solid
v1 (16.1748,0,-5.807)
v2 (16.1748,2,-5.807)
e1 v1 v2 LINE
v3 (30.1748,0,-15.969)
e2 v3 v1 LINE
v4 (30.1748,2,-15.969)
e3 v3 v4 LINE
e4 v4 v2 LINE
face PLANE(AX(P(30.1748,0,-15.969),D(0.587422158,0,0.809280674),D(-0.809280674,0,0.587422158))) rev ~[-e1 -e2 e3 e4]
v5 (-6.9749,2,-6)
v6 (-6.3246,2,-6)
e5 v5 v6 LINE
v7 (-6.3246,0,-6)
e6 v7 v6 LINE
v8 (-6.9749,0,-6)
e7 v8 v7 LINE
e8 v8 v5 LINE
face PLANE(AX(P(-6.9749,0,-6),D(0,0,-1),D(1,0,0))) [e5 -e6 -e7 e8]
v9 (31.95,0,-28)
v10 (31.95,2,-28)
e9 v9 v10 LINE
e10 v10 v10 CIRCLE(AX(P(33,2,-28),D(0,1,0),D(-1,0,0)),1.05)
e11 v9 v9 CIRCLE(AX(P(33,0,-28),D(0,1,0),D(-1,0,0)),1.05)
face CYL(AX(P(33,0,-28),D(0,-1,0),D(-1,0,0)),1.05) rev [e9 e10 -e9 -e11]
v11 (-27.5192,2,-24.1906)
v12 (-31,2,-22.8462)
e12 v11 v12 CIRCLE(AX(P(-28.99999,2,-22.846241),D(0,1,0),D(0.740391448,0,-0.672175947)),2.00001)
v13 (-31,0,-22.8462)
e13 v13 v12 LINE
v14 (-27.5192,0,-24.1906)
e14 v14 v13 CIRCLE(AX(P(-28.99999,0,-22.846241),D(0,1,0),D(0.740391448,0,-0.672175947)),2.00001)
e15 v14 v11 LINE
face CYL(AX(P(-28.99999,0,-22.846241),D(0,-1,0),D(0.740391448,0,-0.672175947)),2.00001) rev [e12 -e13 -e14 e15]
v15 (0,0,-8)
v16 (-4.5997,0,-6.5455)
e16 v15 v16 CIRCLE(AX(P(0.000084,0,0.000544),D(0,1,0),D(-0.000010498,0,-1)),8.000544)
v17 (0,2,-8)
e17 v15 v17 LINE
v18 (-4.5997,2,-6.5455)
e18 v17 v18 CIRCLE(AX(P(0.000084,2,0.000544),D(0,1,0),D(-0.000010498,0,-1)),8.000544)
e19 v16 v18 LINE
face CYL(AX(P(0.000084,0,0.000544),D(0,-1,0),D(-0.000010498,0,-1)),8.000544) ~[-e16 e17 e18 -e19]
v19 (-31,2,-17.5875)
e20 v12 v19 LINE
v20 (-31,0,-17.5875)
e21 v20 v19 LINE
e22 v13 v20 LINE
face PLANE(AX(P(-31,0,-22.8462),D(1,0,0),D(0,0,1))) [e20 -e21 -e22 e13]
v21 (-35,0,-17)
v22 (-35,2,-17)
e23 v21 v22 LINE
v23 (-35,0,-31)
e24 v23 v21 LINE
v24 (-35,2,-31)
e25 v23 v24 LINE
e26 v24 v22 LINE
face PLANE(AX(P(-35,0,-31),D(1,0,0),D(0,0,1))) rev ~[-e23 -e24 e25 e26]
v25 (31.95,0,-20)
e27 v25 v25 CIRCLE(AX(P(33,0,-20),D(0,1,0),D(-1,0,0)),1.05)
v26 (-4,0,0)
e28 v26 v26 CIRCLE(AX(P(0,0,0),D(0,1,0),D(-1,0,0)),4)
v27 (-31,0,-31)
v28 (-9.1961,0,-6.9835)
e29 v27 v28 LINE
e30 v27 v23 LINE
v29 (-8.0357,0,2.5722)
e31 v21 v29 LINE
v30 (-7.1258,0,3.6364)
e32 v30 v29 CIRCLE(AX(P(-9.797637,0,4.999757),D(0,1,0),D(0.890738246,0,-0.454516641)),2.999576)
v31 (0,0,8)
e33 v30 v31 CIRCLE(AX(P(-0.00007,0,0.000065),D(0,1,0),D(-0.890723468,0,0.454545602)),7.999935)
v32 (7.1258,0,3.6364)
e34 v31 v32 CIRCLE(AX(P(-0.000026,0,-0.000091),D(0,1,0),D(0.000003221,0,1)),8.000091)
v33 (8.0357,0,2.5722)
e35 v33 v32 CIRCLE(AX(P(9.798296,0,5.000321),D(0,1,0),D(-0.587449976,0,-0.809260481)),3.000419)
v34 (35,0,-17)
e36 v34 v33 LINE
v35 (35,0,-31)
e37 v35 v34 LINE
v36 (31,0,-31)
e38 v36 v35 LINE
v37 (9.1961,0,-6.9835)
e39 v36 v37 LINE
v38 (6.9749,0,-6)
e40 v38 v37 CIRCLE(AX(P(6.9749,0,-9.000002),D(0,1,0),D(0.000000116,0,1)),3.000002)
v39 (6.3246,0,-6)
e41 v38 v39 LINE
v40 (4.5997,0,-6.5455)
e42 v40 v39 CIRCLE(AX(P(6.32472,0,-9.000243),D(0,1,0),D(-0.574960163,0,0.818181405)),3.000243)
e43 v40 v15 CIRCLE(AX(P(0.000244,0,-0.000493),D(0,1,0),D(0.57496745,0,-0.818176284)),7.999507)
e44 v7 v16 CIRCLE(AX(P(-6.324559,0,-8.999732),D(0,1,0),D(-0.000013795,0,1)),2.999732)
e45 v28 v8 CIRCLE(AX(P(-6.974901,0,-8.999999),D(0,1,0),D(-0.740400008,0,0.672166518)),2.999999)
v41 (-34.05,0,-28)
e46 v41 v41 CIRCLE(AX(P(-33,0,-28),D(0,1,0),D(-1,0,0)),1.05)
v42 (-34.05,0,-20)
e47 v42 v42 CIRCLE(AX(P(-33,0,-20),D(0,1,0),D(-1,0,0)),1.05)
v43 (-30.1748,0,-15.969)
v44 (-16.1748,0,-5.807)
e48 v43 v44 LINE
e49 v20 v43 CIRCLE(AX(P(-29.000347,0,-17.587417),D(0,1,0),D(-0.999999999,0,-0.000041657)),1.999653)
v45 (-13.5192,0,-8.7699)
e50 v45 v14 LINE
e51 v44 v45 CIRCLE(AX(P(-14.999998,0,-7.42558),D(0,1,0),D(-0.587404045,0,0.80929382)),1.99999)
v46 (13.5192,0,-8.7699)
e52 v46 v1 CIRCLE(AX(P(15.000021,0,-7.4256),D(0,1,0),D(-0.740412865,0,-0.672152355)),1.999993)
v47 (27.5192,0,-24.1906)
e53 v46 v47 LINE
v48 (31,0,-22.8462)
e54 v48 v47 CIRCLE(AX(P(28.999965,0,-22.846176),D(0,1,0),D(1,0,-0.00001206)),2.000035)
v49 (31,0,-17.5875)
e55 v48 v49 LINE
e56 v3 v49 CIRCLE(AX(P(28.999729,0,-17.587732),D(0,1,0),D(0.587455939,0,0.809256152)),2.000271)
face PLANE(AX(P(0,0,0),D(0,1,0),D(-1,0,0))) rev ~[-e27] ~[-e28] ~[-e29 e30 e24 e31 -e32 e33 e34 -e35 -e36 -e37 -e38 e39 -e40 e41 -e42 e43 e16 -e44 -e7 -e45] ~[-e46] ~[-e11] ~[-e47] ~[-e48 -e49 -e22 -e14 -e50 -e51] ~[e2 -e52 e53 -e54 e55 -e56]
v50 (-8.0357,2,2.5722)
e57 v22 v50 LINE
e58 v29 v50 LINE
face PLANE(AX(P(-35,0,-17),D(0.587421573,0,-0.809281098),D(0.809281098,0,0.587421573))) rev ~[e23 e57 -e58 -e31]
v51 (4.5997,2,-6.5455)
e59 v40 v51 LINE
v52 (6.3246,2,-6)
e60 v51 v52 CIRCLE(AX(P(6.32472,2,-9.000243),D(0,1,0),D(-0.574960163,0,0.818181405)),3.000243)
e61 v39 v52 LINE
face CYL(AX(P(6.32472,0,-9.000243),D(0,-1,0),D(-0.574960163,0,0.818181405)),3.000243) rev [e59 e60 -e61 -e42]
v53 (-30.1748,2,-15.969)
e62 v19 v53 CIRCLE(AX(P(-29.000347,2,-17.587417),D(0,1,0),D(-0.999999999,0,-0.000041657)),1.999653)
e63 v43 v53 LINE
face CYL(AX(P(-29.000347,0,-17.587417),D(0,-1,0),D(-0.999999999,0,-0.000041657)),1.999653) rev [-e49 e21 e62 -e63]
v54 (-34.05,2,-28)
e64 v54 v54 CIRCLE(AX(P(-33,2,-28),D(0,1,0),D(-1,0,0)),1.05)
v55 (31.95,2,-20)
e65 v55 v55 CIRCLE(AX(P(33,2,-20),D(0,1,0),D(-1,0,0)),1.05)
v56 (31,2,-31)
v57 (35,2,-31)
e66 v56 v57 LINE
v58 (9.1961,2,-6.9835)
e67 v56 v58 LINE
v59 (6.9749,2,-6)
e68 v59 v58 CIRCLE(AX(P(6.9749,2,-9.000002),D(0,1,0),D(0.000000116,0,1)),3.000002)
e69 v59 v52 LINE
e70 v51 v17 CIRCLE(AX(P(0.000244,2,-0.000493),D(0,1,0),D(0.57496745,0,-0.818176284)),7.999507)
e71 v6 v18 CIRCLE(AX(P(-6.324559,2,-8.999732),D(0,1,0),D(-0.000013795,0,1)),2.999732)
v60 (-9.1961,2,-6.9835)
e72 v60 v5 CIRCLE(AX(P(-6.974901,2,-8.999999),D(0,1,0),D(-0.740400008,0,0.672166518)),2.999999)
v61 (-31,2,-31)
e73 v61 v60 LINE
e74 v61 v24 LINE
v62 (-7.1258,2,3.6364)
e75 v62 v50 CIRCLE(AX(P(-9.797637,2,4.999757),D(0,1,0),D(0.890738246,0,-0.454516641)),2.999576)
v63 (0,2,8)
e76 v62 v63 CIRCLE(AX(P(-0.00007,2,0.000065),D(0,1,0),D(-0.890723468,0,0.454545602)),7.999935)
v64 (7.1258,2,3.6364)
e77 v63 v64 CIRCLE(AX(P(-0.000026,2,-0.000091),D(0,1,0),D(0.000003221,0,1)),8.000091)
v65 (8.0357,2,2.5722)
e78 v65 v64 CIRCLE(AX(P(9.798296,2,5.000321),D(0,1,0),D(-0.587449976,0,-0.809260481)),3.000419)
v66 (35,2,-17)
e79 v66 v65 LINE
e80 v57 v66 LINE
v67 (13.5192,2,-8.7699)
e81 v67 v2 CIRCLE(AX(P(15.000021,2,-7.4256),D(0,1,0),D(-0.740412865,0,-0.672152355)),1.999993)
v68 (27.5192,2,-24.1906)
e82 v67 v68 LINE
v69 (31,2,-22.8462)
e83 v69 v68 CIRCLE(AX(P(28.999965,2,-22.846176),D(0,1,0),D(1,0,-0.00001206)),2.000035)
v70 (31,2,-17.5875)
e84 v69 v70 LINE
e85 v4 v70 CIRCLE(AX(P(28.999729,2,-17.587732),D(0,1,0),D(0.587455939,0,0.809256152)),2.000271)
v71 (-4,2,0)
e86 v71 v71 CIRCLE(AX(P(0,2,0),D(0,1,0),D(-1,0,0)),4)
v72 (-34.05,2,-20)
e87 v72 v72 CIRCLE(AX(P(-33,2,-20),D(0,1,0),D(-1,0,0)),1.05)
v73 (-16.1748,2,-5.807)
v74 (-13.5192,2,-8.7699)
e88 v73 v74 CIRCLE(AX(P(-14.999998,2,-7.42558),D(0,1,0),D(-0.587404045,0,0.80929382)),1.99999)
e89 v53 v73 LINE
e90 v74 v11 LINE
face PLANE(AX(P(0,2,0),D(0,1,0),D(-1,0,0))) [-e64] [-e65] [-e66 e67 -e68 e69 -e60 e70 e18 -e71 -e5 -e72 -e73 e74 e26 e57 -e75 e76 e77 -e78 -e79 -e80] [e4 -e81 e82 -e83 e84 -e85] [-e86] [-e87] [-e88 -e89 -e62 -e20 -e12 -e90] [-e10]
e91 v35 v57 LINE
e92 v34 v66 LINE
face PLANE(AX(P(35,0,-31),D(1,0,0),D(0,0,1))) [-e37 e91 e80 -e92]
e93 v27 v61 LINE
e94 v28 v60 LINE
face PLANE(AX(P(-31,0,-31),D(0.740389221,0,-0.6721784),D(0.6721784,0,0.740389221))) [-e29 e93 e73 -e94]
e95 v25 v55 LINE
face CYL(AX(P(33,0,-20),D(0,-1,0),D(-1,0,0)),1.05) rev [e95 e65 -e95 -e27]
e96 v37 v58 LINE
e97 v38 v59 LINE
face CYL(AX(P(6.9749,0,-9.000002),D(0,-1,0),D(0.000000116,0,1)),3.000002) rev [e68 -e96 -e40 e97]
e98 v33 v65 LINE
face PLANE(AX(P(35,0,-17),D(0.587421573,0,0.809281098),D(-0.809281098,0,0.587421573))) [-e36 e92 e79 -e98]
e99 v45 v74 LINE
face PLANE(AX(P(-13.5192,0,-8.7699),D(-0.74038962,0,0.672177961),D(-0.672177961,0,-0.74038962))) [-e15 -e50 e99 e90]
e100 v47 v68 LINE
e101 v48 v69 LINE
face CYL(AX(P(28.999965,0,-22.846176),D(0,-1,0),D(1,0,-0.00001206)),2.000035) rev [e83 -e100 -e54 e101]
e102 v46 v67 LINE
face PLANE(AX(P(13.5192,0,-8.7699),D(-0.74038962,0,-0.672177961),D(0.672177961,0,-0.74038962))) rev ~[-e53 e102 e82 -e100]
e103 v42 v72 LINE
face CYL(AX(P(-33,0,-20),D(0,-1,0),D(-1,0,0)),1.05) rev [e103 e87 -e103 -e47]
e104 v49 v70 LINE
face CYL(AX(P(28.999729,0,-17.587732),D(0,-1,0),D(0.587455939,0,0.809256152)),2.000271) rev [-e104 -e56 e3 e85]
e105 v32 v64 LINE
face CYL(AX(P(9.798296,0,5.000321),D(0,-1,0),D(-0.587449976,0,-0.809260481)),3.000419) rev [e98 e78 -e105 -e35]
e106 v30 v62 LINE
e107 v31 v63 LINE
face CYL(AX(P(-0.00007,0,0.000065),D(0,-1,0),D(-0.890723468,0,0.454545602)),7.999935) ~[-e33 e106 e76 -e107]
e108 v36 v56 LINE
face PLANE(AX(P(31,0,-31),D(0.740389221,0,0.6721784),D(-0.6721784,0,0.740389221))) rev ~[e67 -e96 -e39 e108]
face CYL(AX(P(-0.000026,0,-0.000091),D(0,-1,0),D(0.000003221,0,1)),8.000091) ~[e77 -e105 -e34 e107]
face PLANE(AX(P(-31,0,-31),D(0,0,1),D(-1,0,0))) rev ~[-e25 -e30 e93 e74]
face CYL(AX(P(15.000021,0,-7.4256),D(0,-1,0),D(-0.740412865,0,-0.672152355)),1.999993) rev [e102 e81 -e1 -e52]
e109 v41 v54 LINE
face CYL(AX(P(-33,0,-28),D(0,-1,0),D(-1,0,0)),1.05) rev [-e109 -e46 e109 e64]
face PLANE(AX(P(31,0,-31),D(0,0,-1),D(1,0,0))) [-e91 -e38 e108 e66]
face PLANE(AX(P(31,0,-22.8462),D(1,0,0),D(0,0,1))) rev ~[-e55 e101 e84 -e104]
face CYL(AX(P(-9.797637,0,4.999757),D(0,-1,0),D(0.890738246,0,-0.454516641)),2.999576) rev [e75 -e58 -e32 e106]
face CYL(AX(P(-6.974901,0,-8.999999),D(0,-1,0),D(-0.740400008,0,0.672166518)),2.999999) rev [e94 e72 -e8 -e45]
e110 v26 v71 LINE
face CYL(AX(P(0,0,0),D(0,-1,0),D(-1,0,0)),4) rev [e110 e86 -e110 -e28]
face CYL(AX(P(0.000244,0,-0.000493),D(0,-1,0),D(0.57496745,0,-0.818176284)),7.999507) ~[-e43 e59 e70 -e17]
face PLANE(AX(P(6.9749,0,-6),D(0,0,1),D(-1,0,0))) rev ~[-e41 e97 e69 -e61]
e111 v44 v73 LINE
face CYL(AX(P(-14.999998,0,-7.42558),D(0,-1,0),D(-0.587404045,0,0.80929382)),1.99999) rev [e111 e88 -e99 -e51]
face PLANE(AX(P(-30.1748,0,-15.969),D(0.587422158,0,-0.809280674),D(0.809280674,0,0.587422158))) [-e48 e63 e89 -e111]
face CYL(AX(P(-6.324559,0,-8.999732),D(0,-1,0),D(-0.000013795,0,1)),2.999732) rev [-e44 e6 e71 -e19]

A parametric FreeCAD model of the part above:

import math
import FreeCAD as App
import Part
import Sketcher

doc = App.newDocument("Part")
params = doc.addObject("Spreadsheet::Sheet", "Params")
for row, (alias, value) in enumerate([
    ("sketch1_diameter", "8 mm"),
    ("sketch1_radius", "8 mm"),
    ("sketch1_radius2", "3 mm"),
    ("sketch1_radius3", "2 mm"),
    ("sketch1_diameter2", "2.1 mm"),
    ("pad1_length", "2 mm"),
], start=1):
    params.set(f"A{row}", alias)
    params.set(f"B{row}", "=" + value)
    params.setAlias(f"B{row}", alias)

body = doc.addObject("PartDesign::Body", "Body")

# Sketch on XZ plane
sketch1 = doc.addObject("Sketcher::SketchObject", "Sketch")
body.addObject(sketch1)
sketch1.AttachmentSupport = (doc.XZ_Plane, [""])
sketch1.MapMode = "FlatFace"
sketch1.addGeometry(Part.ArcOfCircle(Part.Circle(App.Vector(0, 0, 0), App.Vector(0, 0, 1), 8), math.radians(-90), math.radians(-55)), False)
sketch1.addGeometry(Part.ArcOfCircle(Part.Circle(App.Vector(0, 0, 0), App.Vector(0, 0, 1), 8), math.radians(-125), math.radians(-90)), False)
sketch1.addGeometry(Part.ArcOfCircle(Part.Circle(App.Vector(-6.3, -9, 0), App.Vector(0, 0, 1), 3), math.radians(55), math.radians(90)), False)
sketch1.addGeometry(Part.LineSegment(App.Vector(-6.3, -6, 0), App.Vector(-7, -6, 0)), False)
sketch1.addGeometry(Part.ArcOfCircle(Part.Circle(App.Vector(-7, -9, 0), App.Vector(0, 0, 1), 3), math.radians(90), math.radians(138)), False)
sketch1.addGeometry(Part.LineSegment(App.Vector(-9.2, -7, 0), App.Vector(-31, -31, 0)), False)
sketch1.addGeometry(Part.LineSegment(App.Vector(-31, -31, 0), App.Vector(-35, -31, 0)), False)
sketch1.addGeometry(Part.LineSegment(App.Vector(-35, -31, 0), App.Vector(-35, -17, 0)), False)
sketch1.addGeometry(Part.LineSegment(App.Vector(-35, -17, 0), App.Vector(-8, 2.6, 0)), False)
sketch1.addGeometry(Part.ArcOfCircle(Part.Circle(App.Vector(-9.8, 5, 0), App.Vector(0, 0, 1), 3), math.radians(-54), math.radians(-27)), False)
sketch1.addGeometry(Part.ArcOfCircle(Part.Circle(App.Vector(0, 0, 0), App.Vector(0, 0, 1), 8), math.radians(90), math.radians(153)), False)
sketch1.addGeometry(Part.ArcOfCircle(Part.Circle(App.Vector(0, 0, 0), App.Vector(0, 0, 1), 8), math.radians(27), math.radians(90)), False)
sketch1.addGeometry(Part.ArcOfCircle(Part.Circle(App.Vector(9.8, 5, 0), App.Vector(0, 0, 1), 3), math.radians(-153), math.radians(-126)), False)
sketch1.addGeometry(Part.LineSegment(App.Vector(8, 2.6, 0), App.Vector(35, -17, 0)), False)
sketch1.addGeometry(Part.LineSegment(App.Vector(35, -17, 0), App.Vector(35, -31, 0)), False)
sketch1.addGeometry(Part.LineSegment(App.Vector(35, -31, 0), App.Vector(31, -31, 0)), False)
sketch1.addGeometry(Part.LineSegment(App.Vector(31, -31, 0), App.Vector(9.2, -7, 0)), False)
sketch1.addGeometry(Part.ArcOfCircle(Part.Circle(App.Vector(7, -9, 0), App.Vector(0, 0, 1), 3), math.radians(42), math.radians(90)), False)
sketch1.addGeometry(Part.LineSegment(App.Vector(7, -6, 0), App.Vector(6.3, -6, 0)), False)
sketch1.addGeometry(Part.ArcOfCircle(Part.Circle(App.Vector(6.3, -9, 0), App.Vector(0, 0, 1), 3), math.radians(90), math.radians(125)), False)
sketch1.addGeometry(Part.Circle(App.Vector(33, -28, 0), App.Vector(0, 0, 1), 1.1), False)
sketch1.addGeometry(Part.Circle(App.Vector(33, -20, 0), App.Vector(0, 0, 1), 1.1), False)
sketch1.addGeometry(Part.ArcOfCircle(Part.Circle(App.Vector(29, -22.8, 0), App.Vector(0, 0, 1), 2), math.radians(-138), math.radians(0)), False)
sketch1.addGeometry(Part.LineSegment(App.Vector(31, -22.8, 0), App.Vector(31, -17.6, 0)), False)
sketch1.addGeometry(Part.ArcOfCircle(Part.Circle(App.Vector(29, -17.6, 0), App.Vector(0, 0, 1), 2), math.radians(0), math.radians(54)), False)
sketch1.addGeometry(Part.LineSegment(App.Vector(30.2, -16, 0), App.Vector(16.2, -5.8, 0)), False)
sketch1.addGeometry(Part.ArcOfCircle(Part.Circle(App.Vector(15, -7.4, 0), App.Vector(0, 0, 1), 2), math.radians(54), math.radians(222)), False)
sketch1.addGeometry(Part.LineSegment(App.Vector(13.5, -8.8, 0), App.Vector(27.5, -24.2, 0)), False)
sketch1.addGeometry(Part.Circle(App.Vector(-33, -28, 0), App.Vector(0, 0, 1), 1.1), False)
sketch1.addGeometry(Part.Circle(App.Vector(-33, -20, 0), App.Vector(0, 0, 1), 1.1), False)
sketch1.addGeometry(Part.LineSegment(App.Vector(-31, -17.6, 0), App.Vector(-31, -22.8, 0)), False)
sketch1.addGeometry(Part.ArcOfCircle(Part.Circle(App.Vector(-29, -22.8, 0), App.Vector(0, 0, 1), 2), math.radians(180), math.radians(318)), False)
sketch1.addGeometry(Part.LineSegment(App.Vector(-27.5, -24.2, 0), App.Vector(-13.5, -8.8, 0)), False)
sketch1.addGeometry(Part.ArcOfCircle(Part.Circle(App.Vector(-15, -7.4, 0), App.Vector(0, 0, 1), 2), math.radians(-42), math.radians(126)), False)
sketch1.addGeometry(Part.LineSegment(App.Vector(-16.2, -5.8, 0), App.Vector(-30.2, -16, 0)), False)
sketch1.addGeometry(Part.ArcOfCircle(Part.Circle(App.Vector(-29, -17.6, 0), App.Vector(0, 0, 1), 2), math.radians(126), math.radians(180)), False)
sketch1.addGeometry(Part.Circle(App.Vector(0, 0, 0), App.Vector(0, 0, 1), 4), False)
sketch1.addConstraint(Sketcher.Constraint("Tangent", 0, 1, 1, 2))
sketch1.addConstraint(Sketcher.Constraint("Tangent", 1, 1, 2, 1))
sketch1.addConstraint(Sketcher.Constraint("Tangent", 2, 2, 3, 1))
sketch1.addConstraint(Sketcher.Constraint("Tangent", 3, 2, 4, 1))
sketch1.addConstraint(Sketcher.Constraint("Tangent", 4, 2, 5, 1))
sketch1.addConstraint(Sketcher.Constraint("Coincident", 5, 2, 6, 1))
sketch1.addConstraint(Sketcher.Constraint("Coincident", 6, 2, 7, 1))
sketch1.addConstraint(Sketcher.Constraint("Coincident", 7, 2, 8, 1))
sketch1.addConstraint(Sketcher.Constraint("Tangent", 8, 2, 9, 1))
sketch1.addConstraint(Sketcher.Constraint("Tangent", 9, 2, 10, 2))
sketch1.addConstraint(Sketcher.Constraint("Tangent", 10, 1, 11, 2))
sketch1.addConstraint(Sketcher.Constraint("Tangent", 11, 1, 12, 1))
sketch1.addConstraint(Sketcher.Constraint("Tangent", 12, 2, 13, 1))
sketch1.addConstraint(Sketcher.Constraint("Coincident", 13, 2, 14, 1))
sketch1.addConstraint(Sketcher.Constraint("Coincident", 14, 2, 15, 1))
sketch1.addConstraint(Sketcher.Constraint("Coincident", 15, 2, 16, 1))
sketch1.addConstraint(Sketcher.Constraint("Tangent", 16, 2, 17, 1))
sketch1.addConstraint(Sketcher.Constraint("Tangent", 17, 2, 18, 1))
sketch1.addConstraint(Sketcher.Constraint("Tangent", 18, 2, 19, 1))
sketch1.addConstraint(Sketcher.Constraint("Tangent", 19, 2, 0, 2))
sketch1.addConstraint(Sketcher.Constraint("Tangent", 22, 2, 23, 1))
sketch1.addConstraint(Sketcher.Constraint("Tangent", 23, 2, 24, 1))
sketch1.addConstraint(Sketcher.Constraint("Tangent", 24, 2, 25, 1))
sketch1.addConstraint(Sketcher.Constraint("Tangent", 25, 2, 26, 1))
sketch1.addConstraint(Sketcher.Constraint("Tangent", 26, 2, 27, 1))
sketch1.addConstraint(Sketcher.Constraint("Tangent", 27, 2, 22, 1))
sketch1.addConstraint(Sketcher.Constraint("Tangent", 30, 2, 31, 1))
sketch1.addConstraint(Sketcher.Constraint("Tangent", 31, 2, 32, 1))
sketch1.addConstraint(Sketcher.Constraint("Tangent", 32, 2, 33, 1))
sketch1.addConstraint(Sketcher.Constraint("Tangent", 33, 2, 34, 1))
sketch1.addConstraint(Sketcher.Constraint("Tangent", 34, 2, 35, 1))
sketch1.addConstraint(Sketcher.Constraint("Tangent", 35, 2, 30, 1))
sketch1.addConstraint(Sketcher.Constraint("Horizontal", 3))
sketch1.addConstraint(Sketcher.Constraint("Horizontal", 6))
sketch1.addConstraint(Sketcher.Constraint("Vertical", 7))
sketch1.addConstraint(Sketcher.Constraint("Vertical", 14))
sketch1.addConstraint(Sketcher.Constraint("Horizontal", 15))
sketch1.addConstraint(Sketcher.Constraint("Horizontal", 18))
sketch1.addConstraint(Sketcher.Constraint("Vertical", 23))
sketch1.addConstraint(Sketcher.Constraint("Vertical", 30))
sketch1.addConstraint(Sketcher.Constraint("Coincident", 0, 3, -1, 1))
sketch1.addConstraint(Sketcher.Constraint("Coincident", 10, 3, -1, 1))
sketch1.addConstraint(Sketcher.Constraint("Coincident", 36, 3, -1, 1))
sketch1.addConstraint(Sketcher.Constraint("Equal", 0, 1))
sketch1.addConstraint(Sketcher.Constraint("Equal", 2, 4))
sketch1.addConstraint(Sketcher.Constraint("Equal", 4, 9))
sketch1.addConstraint(Sketcher.Constraint("Equal", 1, 10))
sketch1.addConstraint(Sketcher.Constraint("Equal", 10, 11))
sketch1.addConstraint(Sketcher.Constraint("Equal", 9, 12))
sketch1.addConstraint(Sketcher.Constraint("Equal", 12, 17))
sketch1.addConstraint(Sketcher.Constraint("Equal", 17, 19))
sketch1.addConstraint(Sketcher.Constraint("Equal", 20, 21))
sketch1.addConstraint(Sketcher.Constraint("Equal", 22, 24))
sketch1.addConstraint(Sketcher.Constraint("Equal", 24, 26))
sketch1.addConstraint(Sketcher.Constraint("Equal", 21, 28))
sketch1.addConstraint(Sketcher.Constraint("Equal", 28, 29))
sketch1.addConstraint(Sketcher.Constraint("Equal", 26, 31))
sketch1.addConstraint(Sketcher.Constraint("Equal", 31, 33))
sketch1.addConstraint(Sketcher.Constraint("Equal", 33, 35))
sketch1.addConstraint(Sketcher.Constraint("Symmetric", 4, 3, 17, 3, -2))
sketch1.addConstraint(Sketcher.Constraint("Symmetric", 20, 3, 28, 3, -2))
sketch1.addConstraint(Sketcher.Constraint("Symmetric", 21, 3, 29, 3, -2))
sketch1.addConstraint(Sketcher.Constraint("Symmetric", 22, 3, 31, 3, -2))
sketch1.addConstraint(Sketcher.Constraint("Symmetric", 26, 3, 33, 3, -2))
sketch1.addConstraint(Sketcher.Constraint("Symmetric", 8, 2, 12, 2, -2))
sketch1.addConstraint(Sketcher.Constraint("Symmetric", 6, 2, 14, 2, -2))
sketch1.addConstraint(Sketcher.Constraint("PointOnObject", 0, 1, -2))
sketch1.addConstraint(Sketcher.Constraint("PointOnObject", 10, 1, -2))
sketch1.addConstraint(Sketcher.Constraint("Parallel", 13, 25))
sketch1.addConstraint(Sketcher.Constraint("Parallel", 16, 27))
sketch1.addConstraint(Sketcher.Constraint("Parallel", 5, 32))
sketch1.addConstraint(Sketcher.Constraint("Parallel", 8, 34))
sketch1.addConstraint(Sketcher.Constraint("Vertical", 20, 3, 21, 3))
sketch1.addConstraint(Sketcher.Constraint("Vertical", 15, 2, 22, 2))
sketch1.addConstraint(Sketcher.Constraint("Diameter", 36, 8.0))
sketch1.addConstraint(Sketcher.Constraint("Radius", 0, 8.0))
sketch1.addConstraint(Sketcher.Constraint("Radius", 2, 3.0))
sketch1.addConstraint(Sketcher.Constraint("Radius", 22, 2.0))
sketch1.addConstraint(Sketcher.Constraint("Diameter", 20, 2.1))
sketch1.addConstraint(Sketcher.Constraint("DistanceX", 6, 2, 6, 1, 4.0))
sketch1.addConstraint(Sketcher.Constraint("DistanceY", -1, 1, 9, 3, 5.0))
sketch1.addConstraint(Sketcher.Constraint("DistanceY", 21, 3, -1, 1, 20.0))
sketch1.addConstraint(Sketcher.Constraint("DistanceX", -1, 1, 26, 3, 15.0))
sketch1.addConstraint(Sketcher.Constraint("DistanceY", 2, 2, -1, 1, 6.0))
sketch1.addConstraint(Sketcher.Constraint("DistanceY", 20, 3, 21, 3, 8.0))
sketch1.addConstraint(Sketcher.Constraint("DistanceX", 22, 3, 21, 3, 4.0))
sketch1.addConstraint(Sketcher.Constraint("DistanceY", 5, 2, 28, 3, 3.0))
sketch1.addConstraint(Sketcher.Constraint("DistanceY", 29, 3, 7, 2, 3.0))
sketch1.addConstraint(Sketcher.Constraint("DistanceX", 26, 3, 13, 2, 20.0))
sketch1.addConstraint(Sketcher.Constraint("DistanceX", 17, 2, 25, 2, 9.2))
sketch1.addConstraint(Sketcher.Constraint("DistanceY", 26, 2, -1, 1, 8.77))
sketch1.setExpression("Constraints[74]", "Params.sketch1_diameter")
sketch1.setExpression("Constraints[75]", "Params.sketch1_radius")
sketch1.setExpression("Constraints[76]", "Params.sketch1_radius2")
sketch1.setExpression("Constraints[77]", "Params.sketch1_radius3")
sketch1.setExpression("Constraints[78]", "Params.sketch1_diameter2")
pad1 = doc.addObject("PartDesign::Pad", "Pad")
body.addObject(pad1)
pad1.Profile = sketch1
pad1.setExpression("Length", "Params.pad1_length")
pad1.Reversed = True

doc.recompute()
